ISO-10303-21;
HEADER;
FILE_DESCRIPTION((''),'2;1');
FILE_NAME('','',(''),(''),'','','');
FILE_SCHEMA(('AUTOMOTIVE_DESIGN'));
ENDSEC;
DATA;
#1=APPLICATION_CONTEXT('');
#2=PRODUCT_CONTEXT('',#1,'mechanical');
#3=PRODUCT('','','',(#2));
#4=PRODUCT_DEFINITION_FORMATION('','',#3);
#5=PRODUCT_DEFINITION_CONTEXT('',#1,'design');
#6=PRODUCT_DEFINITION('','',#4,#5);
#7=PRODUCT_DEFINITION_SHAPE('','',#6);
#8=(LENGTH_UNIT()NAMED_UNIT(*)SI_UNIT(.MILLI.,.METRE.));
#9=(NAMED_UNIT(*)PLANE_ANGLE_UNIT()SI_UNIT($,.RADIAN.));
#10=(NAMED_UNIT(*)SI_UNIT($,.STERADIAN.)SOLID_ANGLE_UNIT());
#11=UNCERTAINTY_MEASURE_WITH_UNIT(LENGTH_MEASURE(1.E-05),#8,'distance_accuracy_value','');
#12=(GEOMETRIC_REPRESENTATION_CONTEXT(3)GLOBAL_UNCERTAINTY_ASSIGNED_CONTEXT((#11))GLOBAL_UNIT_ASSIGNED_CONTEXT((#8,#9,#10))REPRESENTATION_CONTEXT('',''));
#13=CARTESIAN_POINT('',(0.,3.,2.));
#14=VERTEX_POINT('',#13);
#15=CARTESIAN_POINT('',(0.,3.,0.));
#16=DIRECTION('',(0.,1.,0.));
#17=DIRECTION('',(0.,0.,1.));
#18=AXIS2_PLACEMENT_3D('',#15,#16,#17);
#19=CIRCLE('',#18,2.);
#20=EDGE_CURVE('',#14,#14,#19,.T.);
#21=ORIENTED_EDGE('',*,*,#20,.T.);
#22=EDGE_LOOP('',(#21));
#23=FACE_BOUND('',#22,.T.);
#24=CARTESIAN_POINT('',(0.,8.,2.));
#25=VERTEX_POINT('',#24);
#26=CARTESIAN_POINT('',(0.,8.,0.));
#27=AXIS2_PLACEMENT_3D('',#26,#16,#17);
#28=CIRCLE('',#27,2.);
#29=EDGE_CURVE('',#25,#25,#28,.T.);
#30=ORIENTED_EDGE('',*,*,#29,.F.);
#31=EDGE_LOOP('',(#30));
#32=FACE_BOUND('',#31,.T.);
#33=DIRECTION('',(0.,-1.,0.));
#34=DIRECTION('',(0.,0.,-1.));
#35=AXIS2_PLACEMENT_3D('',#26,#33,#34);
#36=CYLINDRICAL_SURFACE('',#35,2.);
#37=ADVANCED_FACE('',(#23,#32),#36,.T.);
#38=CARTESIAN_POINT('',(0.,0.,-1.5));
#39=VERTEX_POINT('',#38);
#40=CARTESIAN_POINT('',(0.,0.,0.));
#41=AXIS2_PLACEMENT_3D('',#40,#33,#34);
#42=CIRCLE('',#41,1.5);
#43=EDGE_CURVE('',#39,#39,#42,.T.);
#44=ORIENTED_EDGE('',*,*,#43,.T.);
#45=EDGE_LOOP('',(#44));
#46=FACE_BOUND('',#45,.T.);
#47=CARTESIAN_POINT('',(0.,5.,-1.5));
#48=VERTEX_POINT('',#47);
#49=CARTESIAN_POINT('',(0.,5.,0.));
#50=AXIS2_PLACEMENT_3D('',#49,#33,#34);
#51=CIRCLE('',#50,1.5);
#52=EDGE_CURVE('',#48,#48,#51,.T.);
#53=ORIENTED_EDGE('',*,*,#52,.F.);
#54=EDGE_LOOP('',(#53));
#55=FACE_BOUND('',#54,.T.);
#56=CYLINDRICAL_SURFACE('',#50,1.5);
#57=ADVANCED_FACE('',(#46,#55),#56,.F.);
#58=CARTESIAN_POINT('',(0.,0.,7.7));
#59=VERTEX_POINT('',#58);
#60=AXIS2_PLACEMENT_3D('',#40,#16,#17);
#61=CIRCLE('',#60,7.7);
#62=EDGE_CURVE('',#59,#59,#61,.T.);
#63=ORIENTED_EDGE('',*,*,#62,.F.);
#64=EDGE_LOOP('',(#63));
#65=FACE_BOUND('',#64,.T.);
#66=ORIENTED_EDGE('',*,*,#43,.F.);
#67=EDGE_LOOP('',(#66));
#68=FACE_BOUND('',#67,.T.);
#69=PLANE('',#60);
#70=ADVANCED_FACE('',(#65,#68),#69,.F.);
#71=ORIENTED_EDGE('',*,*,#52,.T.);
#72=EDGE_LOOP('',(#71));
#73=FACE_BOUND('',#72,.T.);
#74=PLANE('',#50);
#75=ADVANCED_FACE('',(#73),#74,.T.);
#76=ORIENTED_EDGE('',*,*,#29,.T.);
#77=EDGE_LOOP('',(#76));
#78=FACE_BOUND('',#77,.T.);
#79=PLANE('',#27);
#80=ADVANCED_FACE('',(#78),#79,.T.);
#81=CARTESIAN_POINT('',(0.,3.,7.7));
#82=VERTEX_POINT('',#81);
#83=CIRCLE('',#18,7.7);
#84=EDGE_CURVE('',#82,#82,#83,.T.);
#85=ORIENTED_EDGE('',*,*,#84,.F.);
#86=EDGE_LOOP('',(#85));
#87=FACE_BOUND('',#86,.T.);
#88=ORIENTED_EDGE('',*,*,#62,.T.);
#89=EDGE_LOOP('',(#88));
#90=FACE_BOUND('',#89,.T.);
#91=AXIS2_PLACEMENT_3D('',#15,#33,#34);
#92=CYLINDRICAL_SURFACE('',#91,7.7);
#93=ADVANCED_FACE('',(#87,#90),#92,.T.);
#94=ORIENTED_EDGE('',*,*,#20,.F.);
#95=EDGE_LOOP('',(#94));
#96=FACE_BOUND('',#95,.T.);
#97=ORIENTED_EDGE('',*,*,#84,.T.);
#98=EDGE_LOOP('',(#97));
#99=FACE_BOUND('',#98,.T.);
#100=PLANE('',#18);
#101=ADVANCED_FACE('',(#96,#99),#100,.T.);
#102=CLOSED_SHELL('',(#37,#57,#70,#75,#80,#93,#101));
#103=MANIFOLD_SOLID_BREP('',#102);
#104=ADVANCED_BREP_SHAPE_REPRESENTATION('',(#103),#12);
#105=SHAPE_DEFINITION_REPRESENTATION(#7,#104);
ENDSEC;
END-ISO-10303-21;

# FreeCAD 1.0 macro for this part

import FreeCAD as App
import Part
import Sketcher

V = App.Vector
Q = App.Units.Quantity

doc = App.newDocument("Part")
body = doc.addObject("PartDesign::Body", "Body")

# Sketch on XZ plane
sketch1 = body.newObject("Sketcher::SketchObject", "Sketch")
sketch1.AttachmentSupport = (doc.getObject("XZ_Plane"), [""])
sketch1.MapMode = "FlatFace"
sketch1.addGeometry(Part.Circle(V(0, 0, 0), V(0, 0, 1), 8), False)
sketch1.addConstraint([
    Sketcher.Constraint("Coincident", 0, 3, -1, 1),
    Sketcher.Constraint("Diameter", 0, Q("15.4 mm")),
])
pad1 = body.newObject("PartDesign::Pad", "Pad")
pad1.Profile = sketch1
pad1.Length = 3
pad1.Reversed = True

# Sketch on XZ plane
sketch2 = body.newObject("Sketcher::SketchObject", "Sketch001")
sketch2.AttachmentSupport = (doc.getObject("XZ_Plane"), [""])
sketch2.MapMode = "FlatFace"
sketch2.AttachmentOffset = App.Placement(V(0, 0, -3), App.Rotation())
sketch2.addGeometry(Part.Circle(V(0, 0, 0), V(0, 0, 1), 2), False)
sketch2.addConstraint([
    Sketcher.Constraint("Coincident", 0, 3, -1, 1),
    Sketcher.Constraint("Diameter", 0, Q("4 mm")),
])
pad2 = body.newObject("PartDesign::Pad", "Pad001")
pad2.Profile = sketch2
pad2.Length = 5
pad2.Reversed = True

# Sketch on XZ plane
sketch3 = body.newObject("Sketcher::SketchObject", "Sketch002")
sketch3.AttachmentSupport = (doc.getObject("XZ_Plane"), [""])
sketch3.MapMode = "FlatFace"
sketch3.addGeometry(Part.Circle(V(0, 0, 0), V(0, 0, 1), 1.5), False)
sketch3.addConstraint([
    Sketcher.Constraint("Coincident", 0, 3, -1, 1),
    Sketcher.Constraint("Diameter", 0, Q("3 mm")),
])
pocket1 = body.newObject("PartDesign::Pocket", "Pocket")
pocket1.Profile = sketch3
pocket1.Length = 5

doc.recompute()
